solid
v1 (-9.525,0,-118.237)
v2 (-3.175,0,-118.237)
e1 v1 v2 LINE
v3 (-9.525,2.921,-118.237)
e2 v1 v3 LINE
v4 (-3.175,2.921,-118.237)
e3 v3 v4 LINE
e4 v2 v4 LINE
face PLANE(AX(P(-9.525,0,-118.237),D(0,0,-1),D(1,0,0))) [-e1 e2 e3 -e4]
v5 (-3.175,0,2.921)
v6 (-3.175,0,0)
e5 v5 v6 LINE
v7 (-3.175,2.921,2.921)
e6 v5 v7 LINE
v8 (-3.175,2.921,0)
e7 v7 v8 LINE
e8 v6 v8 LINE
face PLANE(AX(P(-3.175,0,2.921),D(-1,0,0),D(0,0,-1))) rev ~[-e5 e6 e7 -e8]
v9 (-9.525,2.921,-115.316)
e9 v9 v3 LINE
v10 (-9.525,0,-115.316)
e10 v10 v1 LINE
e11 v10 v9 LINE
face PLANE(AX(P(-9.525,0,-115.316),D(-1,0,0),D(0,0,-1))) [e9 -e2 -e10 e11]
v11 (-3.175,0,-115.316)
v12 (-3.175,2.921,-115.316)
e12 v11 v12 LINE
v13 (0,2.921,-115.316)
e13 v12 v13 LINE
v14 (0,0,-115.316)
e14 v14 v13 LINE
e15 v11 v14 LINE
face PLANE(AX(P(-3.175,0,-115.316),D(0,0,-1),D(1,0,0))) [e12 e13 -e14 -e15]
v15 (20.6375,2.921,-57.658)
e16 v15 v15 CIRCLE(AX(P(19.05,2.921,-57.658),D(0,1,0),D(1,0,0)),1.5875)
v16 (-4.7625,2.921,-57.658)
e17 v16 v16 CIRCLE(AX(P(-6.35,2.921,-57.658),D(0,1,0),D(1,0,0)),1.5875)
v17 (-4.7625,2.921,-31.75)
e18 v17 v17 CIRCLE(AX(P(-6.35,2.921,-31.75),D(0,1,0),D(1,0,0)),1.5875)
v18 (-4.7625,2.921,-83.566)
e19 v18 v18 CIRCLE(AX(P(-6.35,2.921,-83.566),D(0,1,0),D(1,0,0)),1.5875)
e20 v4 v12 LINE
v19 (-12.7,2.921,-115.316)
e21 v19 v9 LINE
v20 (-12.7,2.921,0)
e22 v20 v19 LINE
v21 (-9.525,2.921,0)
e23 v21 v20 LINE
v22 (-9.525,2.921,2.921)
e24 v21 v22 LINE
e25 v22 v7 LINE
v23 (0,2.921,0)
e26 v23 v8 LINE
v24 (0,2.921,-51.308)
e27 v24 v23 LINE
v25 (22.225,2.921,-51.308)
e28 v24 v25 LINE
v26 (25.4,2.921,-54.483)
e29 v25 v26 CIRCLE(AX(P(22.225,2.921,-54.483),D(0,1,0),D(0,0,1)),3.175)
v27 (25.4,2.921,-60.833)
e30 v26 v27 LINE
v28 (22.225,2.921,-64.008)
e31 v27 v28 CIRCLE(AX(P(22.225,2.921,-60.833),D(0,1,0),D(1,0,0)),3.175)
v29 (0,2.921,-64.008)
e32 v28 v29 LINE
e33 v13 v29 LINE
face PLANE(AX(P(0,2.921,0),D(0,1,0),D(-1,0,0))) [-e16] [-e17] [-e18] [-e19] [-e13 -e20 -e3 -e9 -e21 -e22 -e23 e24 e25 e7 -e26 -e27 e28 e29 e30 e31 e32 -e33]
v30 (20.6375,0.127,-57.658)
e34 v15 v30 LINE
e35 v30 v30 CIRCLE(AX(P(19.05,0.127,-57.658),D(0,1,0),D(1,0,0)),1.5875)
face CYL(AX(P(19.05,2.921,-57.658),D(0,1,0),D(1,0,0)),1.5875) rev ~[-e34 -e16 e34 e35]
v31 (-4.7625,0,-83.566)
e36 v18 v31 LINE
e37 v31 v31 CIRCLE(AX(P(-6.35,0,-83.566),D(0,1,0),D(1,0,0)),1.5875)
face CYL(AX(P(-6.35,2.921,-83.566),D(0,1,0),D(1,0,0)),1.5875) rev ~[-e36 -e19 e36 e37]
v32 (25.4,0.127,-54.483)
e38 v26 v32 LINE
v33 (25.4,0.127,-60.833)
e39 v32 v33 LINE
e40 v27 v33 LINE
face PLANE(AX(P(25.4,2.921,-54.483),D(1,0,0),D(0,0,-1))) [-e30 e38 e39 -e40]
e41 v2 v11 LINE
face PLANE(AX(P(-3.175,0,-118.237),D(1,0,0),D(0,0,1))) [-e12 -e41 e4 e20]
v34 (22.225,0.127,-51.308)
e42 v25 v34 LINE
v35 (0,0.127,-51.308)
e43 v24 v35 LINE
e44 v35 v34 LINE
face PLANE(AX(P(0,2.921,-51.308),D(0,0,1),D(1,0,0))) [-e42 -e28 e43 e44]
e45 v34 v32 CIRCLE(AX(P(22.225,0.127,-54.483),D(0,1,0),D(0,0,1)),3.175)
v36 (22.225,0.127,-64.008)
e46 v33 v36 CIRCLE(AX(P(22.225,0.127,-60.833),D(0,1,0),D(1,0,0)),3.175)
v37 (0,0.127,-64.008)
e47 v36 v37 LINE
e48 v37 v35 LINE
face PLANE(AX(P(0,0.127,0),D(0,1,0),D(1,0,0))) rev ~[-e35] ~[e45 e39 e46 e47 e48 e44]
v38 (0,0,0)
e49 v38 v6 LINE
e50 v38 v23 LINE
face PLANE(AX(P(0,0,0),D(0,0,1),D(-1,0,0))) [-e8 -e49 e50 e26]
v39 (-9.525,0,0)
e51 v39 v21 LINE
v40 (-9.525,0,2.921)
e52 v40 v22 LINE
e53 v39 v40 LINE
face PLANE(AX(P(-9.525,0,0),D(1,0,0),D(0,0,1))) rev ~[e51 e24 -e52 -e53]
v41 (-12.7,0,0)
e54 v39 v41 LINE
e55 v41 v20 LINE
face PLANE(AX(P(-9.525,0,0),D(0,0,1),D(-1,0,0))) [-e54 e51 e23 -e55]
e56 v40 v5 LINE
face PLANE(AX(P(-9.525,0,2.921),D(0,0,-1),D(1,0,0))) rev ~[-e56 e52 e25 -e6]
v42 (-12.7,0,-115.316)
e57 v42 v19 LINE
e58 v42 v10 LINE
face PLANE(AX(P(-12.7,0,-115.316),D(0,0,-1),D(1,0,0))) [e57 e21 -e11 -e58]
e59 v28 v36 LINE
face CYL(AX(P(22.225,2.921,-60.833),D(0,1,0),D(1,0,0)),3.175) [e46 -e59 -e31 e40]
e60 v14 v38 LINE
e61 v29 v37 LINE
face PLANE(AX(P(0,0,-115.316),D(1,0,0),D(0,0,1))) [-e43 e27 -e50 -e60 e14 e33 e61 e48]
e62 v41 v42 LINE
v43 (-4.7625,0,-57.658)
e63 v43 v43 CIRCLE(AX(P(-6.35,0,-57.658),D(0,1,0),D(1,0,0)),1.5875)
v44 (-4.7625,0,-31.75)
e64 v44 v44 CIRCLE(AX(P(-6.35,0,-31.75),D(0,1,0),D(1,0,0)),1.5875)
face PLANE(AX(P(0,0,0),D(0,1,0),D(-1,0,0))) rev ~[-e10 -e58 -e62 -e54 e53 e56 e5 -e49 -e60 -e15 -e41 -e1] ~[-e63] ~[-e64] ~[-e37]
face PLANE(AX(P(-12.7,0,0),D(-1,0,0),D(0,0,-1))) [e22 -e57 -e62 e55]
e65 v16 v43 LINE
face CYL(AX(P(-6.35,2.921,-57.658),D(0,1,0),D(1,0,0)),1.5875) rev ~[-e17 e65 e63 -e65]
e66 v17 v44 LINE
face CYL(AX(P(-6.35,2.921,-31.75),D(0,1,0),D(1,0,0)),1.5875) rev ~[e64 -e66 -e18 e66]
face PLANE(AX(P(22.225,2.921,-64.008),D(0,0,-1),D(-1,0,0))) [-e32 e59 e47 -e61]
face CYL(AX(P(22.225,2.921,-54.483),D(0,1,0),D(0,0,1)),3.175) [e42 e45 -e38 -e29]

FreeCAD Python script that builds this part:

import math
import FreeCAD as App
import Part
import Sketcher
Q = App.Units.Quantity


def add_polygon(sketch, points):
    """Adds a closed chain of lines whose ends are joined by coincident constraints."""
    first, n = sketch.GeometryCount, len(points)
    for a, b in zip(points, points[1:] + points[:1]):
        sketch.addGeometry(Part.LineSegment(App.Vector(*a, 0), App.Vector(*b, 0)), False)
    for i in range(n):
        sketch.addConstraint(Sketcher.Constraint("Coincident", first + i, 2, first + (i + 1) % n, 1))

doc = App.newDocument("Part")
params = doc.addObject("Spreadsheet::Sheet", "Params")
for row, (alias, value) in enumerate([
    ("sketch1_width", "0.25 in"),
    ("sketch1_height", "4.54 in"),
    ("sketch1_height2", "0.115 in"),
    ("pad1_length", "0.115 in"),
    ("sketch2_diameter", "0.125 in"),
    ("pocket1_length", "0.115 in"),
    ("sketch3_diameter", "0.125 in"),
    ("pocket2_length", "0.115 in"),
    ("sketch4_diameter", "0.125 in"),
    ("sketch4_height", "0.5 in"),
    ("sketch4_radius", "0.125 in"),
    ("pad2_length", "0.11 in"),
], start=1):
    params.set(f"A{row}", alias)
    params.set(f"B{row}", "=" + value)
    params.setAlias(f"B{row}", alias)

body = doc.addObject("PartDesign::Body", "Body")

# Sketch on XZ plane
sketch1 = doc.addObject("Sketcher::SketchObject", "Sketch")
body.addObject(sketch1)
sketch1.AttachmentSupport = (doc.XZ_Plane, [""])
sketch1.MapMode = "FlatFace"
add_polygon(sketch1, [(-3.175, 0), (0, 0), (0, -115.316), (-3.175, -115.316), (-3.175, -118.237), (-9.525, -118.237), (-9.525, -115.316), (-12.7, -115.316), (-12.7, 0), (-9.525, 0), (-9.525, 2.921), (-3.175, 2.921)])  # lines 0-11
sketch1.addConstraint([
    Sketcher.Constraint("Horizontal", 0),
    Sketcher.Constraint("Vertical", 1),
    Sketcher.Constraint("Horizontal", 2),
    Sketcher.Constraint("Vertical", 3),
    Sketcher.Constraint("Horizontal", 4),
    Sketcher.Constraint("Vertical", 5),
    Sketcher.Constraint("Horizontal", 6),
    Sketcher.Constraint("Vertical", 7),
    Sketcher.Constraint("Horizontal", 8),
    Sketcher.Constraint("Vertical", 9),
    Sketcher.Constraint("Horizontal", 10),
    Sketcher.Constraint("Vertical", 11),
    Sketcher.Constraint("Coincident", 0, 2, -1, 1),
    Sketcher.Constraint("PointOnObject", 7, 2, -1),
    Sketcher.Constraint("Horizontal", 2, 2, 5, 2),
    Sketcher.Constraint("Vertical", 5, 2, 8, 2),
    Sketcher.Constraint("Vertical", 3, 2, 10, 2),
    Sketcher.Constraint("Equal", 2, 6),
    Sketcher.Constraint("Equal", 5, 9),
    Sketcher.Constraint("DistanceX", 4, 2, 4, 1, Q("0.25 in")),
    Sketcher.Constraint("DistanceY", 1, 2, 1, 1, Q("4.54 in")),
    Sketcher.Constraint("DistanceX", 6, 2, -1, 1, Q("0.5 in")),
    Sketcher.Constraint("DistanceY", 3, 2, 3, 1, Q("0.115 in")),
])
sketch1.setExpression("Constraints[31]", "Params.sketch1_width")
sketch1.setExpression("Constraints[32]", "Params.sketch1_height")
sketch1.setExpression("Constraints[34]", "Params.sketch1_height2")
pad1 = doc.addObject("PartDesign::Pad", "Pad")
body.addObject(pad1)
pad1.Profile = sketch1
pad1.setExpression("Length", "Params.pad1_length")
pad1.Reversed = True

# Sketch on XZ plane
sketch2 = doc.addObject("Sketcher::SketchObject", "Sketch001")
body.addObject(sketch2)
sketch2.AttachmentSupport = (doc.XZ_Plane, [""])
sketch2.MapMode = "FlatFace"
sketch2.AttachmentOffset = App.Placement(App.Vector(0, 0, -0.115 * 25.4), App.Rotation())
sketch2.addGeometry([
    Part.Circle(App.Vector(-6.35, -31.75, 0), App.Vector(0, 0, 1), 1.5875),
    Part.Circle(App.Vector(-6.35, -83.566, 0), App.Vector(0, 0, 1), 1.5875),
], False)
sketch2.addConstraint([
    Sketcher.Constraint("Equal", 0, 1),
    Sketcher.Constraint("Vertical", 0, 3, 1, 3),
    Sketcher.Constraint("Diameter", 0, Q("0.125 in")),
    Sketcher.Constraint("DistanceX", 0, 3, -1, 1, Q("0.25 in")),
    Sketcher.Constraint("DistanceY", 0, 3, -1, 1, Q("1.25 in")),
    Sketcher.Constraint("DistanceY", 1, 3, -1, 1, Q("3.29 in")),
])
sketch2.setExpression("Constraints[2]", "Params.sketch2_diameter")
pocket1 = doc.addObject("PartDesign::Pocket", "Pocket")
body.addObject(pocket1)
pocket1.Profile = sketch2
pocket1.setExpression("Length", "Params.pocket1_length")
pocket1.Reversed = True

# Sketch on XZ plane
sketch3 = doc.addObject("Sketcher::SketchObject", "Sketch002")
body.addObject(sketch3)
sketch3.AttachmentSupport = (doc.XZ_Plane, [""])
sketch3.MapMode = "FlatFace"
sketch3.AttachmentOffset = App.Placement(App.Vector(0, 0, -0.115 * 25.4), App.Rotation())
sketch3.addGeometry(Part.Circle(App.Vector(-6.35, -57.658, 0), App.Vector(0, 0, 1), 1.5875), False)
sketch3.addConstraint([
    Sketcher.Constraint("Diameter", 0, Q("0.125 in")),
    Sketcher.Constraint("DistanceX", 0, 3, -1, 1, Q("0.25 in")),
    Sketcher.Constraint("DistanceY", 0, 3, -1, 1, Q("2.27 in")),
])
sketch3.setExpression("Constraints[0]", "Params.sketch3_diameter")
pocket2 = doc.addObject("PartDesign::Pocket", "Pocket001")
body.addObject(pocket2)
pocket2.Profile = sketch3
pocket2.setExpression("Length", "Params.pocket2_length")
pocket2.Reversed = True

# Sketch on XZ plane
sketch4 = doc.addObject("Sketcher::SketchObject", "Sketch003")
body.addObject(sketch4)
sketch4.AttachmentSupport = (doc.XZ_Plane, [""])
sketch4.MapMode = "FlatFace"
sketch4.AttachmentOffset = App.Placement(App.Vector(0, 0, -0.115 * 25.4), App.Rotation())
sketch4.addGeometry([
    Part.LineSegment(App.Vector(0, -64.008, 0), App.Vector(0, -51.308, 0)),  # 0
    Part.LineSegment(App.Vector(0, -51.308, 0), App.Vector(22.225, -51.308, 0)),  # 1
    Part.ArcOfCircle(Part.Circle(App.Vector(22.225, -54.483, 0), App.Vector(0, 0, 1), 3.175), math.radians(0), math.radians(90)),  # 2
    Part.LineSegment(App.Vector(25.4, -54.483, 0), App.Vector(25.4, -60.833, 0)),  # 3
    Part.ArcOfCircle(Part.Circle(App.Vector(22.225, -60.833, 0), App.Vector(0, 0, 1), 3.175), math.radians(-90), math.radians(0)),  # 4
    Part.LineSegment(App.Vector(22.225, -64.008, 0), App.Vector(0, -64.008, 0)),  # 5
    Part.Circle(App.Vector(19.05, -57.658, 0), App.Vector(0, 0, 1), 1.5875),  # 6
], False)
sketch4.addConstraint([
    Sketcher.Constraint("Coincident", 0, 2, 1, 1),
    Sketcher.Constraint("Tangent", 1, 2, 2, 2),
    Sketcher.Constraint("Tangent", 2, 1, 3, 1),
    Sketcher.Constraint("Tangent", 3, 2, 4, 2),
    Sketcher.Constraint("Tangent", 4, 1, 5, 1),
    Sketcher.Constraint("Coincident", 5, 2, 0, 1),
    Sketcher.Constraint("Vertical", 0),
    Sketcher.Constraint("Horizontal", 1),
    Sketcher.Constraint("Vertical", 3),
    Sketcher.Constraint("Horizontal", 5),
    Sketcher.Constraint("Equal", 2, 4),
    Sketcher.Constraint("PointOnObject", 0, 2, -2),
    Sketcher.Constraint("Diameter", 6, Q("0.125 in")),
    Sketcher.Constraint("DistanceY", 0, 1, 0, 2, Q("0.5 in")),
    Sketcher.Constraint("DistanceX", -1, 1, 2, 1, Q("1 in")),
    Sketcher.Constraint("Radius", 2, Q("0.125 in")),
    Sketcher.Constraint("DistanceY", 6, 3, 0, 2, Q("0.25 in")),
    Sketcher.Constraint("DistanceX", 6, 3, 2, 1, Q("0.25 in")),
    Sketcher.Constraint("DistanceY", 6, 3, -1, 1, Q("2.27 in")),
])
sketch4.setExpression("Constraints[12]", "Params.sketch4_diameter")
sketch4.setExpression("Constraints[13]", "Params.sketch4_height")
sketch4.setExpression("Constraints[15]", "Params.sketch4_radius")
pad2 = doc.addObject("PartDesign::Pad", "Pad001")
body.addObject(pad2)
pad2.Profile = sketch4
pad2.setExpression("Length", "Params.pad2_length")

doc.recompute()
